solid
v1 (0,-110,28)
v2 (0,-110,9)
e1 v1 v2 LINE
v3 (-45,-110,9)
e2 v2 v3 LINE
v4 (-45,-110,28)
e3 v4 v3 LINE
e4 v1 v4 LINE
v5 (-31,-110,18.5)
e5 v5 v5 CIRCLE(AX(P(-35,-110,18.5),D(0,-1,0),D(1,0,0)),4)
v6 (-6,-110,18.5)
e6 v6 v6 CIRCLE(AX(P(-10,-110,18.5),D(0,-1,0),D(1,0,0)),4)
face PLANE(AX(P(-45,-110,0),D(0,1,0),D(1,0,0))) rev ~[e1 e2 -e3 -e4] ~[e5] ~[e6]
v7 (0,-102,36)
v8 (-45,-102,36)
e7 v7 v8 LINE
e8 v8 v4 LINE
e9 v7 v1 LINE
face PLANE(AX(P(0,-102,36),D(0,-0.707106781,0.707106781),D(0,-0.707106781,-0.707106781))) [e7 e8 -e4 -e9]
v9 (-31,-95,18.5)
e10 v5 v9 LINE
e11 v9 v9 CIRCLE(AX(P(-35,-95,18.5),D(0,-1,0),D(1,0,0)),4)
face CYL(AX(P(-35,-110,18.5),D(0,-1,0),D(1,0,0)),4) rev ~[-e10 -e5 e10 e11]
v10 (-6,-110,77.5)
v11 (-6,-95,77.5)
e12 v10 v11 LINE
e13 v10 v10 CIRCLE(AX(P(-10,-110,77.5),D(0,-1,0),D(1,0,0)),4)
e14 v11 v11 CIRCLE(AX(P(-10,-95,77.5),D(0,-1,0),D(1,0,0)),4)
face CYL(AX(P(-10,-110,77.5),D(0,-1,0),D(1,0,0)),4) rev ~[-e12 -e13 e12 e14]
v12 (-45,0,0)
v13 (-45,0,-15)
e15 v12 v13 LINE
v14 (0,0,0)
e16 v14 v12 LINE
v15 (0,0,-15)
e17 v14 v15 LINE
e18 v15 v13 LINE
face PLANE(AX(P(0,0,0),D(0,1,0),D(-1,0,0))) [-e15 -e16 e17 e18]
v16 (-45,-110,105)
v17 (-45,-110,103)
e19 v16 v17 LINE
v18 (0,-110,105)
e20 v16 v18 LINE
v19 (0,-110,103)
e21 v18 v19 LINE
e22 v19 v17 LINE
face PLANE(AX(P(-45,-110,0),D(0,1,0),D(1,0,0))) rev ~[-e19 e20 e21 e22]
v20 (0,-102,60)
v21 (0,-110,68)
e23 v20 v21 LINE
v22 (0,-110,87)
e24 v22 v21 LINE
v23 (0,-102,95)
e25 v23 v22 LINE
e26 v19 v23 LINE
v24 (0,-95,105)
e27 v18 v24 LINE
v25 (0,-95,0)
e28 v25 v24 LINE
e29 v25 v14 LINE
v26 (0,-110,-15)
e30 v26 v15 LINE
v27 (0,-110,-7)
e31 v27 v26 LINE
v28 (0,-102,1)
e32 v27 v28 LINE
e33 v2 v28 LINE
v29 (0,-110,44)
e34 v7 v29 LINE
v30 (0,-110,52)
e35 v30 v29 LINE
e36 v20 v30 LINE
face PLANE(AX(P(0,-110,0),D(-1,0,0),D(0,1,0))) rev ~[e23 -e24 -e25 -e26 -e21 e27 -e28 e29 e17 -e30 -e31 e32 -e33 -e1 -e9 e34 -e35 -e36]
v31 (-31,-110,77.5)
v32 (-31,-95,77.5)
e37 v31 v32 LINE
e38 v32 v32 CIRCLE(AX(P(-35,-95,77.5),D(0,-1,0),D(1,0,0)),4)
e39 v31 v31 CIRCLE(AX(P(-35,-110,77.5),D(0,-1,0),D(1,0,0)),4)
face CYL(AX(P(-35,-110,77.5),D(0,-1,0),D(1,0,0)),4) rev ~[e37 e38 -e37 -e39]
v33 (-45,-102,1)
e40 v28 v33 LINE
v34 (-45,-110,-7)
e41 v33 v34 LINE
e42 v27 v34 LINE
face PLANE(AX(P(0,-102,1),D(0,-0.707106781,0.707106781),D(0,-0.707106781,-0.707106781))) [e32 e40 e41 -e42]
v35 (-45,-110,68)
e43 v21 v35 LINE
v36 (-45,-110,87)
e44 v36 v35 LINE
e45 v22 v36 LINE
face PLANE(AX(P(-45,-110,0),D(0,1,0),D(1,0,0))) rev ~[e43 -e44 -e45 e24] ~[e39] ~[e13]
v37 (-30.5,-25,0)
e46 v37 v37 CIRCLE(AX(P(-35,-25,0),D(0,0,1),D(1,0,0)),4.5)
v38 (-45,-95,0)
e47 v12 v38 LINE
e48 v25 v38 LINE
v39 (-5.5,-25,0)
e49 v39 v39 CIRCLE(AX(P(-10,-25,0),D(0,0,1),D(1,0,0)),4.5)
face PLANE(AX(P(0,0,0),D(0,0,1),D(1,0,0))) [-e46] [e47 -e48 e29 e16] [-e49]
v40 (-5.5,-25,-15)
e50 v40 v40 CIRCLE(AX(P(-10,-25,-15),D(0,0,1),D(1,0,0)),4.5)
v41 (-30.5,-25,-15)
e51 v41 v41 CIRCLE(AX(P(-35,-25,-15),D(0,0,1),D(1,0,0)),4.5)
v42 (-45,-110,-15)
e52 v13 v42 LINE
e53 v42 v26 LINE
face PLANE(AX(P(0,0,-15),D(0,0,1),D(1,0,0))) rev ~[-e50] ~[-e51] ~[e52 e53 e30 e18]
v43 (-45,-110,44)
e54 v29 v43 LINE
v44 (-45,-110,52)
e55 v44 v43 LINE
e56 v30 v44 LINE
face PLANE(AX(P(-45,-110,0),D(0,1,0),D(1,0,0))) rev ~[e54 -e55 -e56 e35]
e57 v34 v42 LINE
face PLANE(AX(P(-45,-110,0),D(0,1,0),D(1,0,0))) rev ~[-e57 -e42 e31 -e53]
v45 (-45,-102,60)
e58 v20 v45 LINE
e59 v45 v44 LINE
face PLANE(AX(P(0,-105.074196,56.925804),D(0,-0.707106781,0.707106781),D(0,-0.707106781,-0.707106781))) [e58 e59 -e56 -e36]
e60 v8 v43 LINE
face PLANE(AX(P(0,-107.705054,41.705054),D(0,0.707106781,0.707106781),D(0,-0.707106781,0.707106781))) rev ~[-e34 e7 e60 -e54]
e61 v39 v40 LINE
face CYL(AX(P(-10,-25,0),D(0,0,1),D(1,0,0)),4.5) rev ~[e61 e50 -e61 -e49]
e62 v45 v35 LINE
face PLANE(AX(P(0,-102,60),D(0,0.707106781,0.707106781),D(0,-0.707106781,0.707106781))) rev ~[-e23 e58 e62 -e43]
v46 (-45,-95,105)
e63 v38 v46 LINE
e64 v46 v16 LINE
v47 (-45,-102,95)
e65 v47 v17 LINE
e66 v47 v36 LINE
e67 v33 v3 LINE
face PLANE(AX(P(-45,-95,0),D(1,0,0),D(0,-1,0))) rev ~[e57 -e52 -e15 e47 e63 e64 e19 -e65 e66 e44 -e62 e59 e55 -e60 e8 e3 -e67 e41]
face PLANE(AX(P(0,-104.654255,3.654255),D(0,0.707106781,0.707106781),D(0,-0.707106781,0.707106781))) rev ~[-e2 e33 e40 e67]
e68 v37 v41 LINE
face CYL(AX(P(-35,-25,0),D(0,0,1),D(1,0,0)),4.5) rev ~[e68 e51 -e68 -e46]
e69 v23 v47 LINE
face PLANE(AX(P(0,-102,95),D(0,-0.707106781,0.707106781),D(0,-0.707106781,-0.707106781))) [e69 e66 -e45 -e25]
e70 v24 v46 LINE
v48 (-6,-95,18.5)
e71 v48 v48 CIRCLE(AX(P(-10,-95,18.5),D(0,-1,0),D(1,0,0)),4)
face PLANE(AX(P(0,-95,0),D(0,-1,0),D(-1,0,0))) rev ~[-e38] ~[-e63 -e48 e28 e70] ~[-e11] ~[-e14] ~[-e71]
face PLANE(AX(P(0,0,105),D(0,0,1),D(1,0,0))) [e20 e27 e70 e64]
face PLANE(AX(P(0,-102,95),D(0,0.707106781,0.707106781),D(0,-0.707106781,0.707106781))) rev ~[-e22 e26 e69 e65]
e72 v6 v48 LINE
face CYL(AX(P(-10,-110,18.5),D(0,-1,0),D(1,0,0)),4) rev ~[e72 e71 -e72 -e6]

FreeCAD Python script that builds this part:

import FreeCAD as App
import Part
import Sketcher

V = App.Vector


def add_polygon(sketch, points):
    """Adds a closed chain of lines whose ends are joined by coincident constraints."""
    first, n = sketch.GeometryCount, len(points)
    for a, b in zip(points, points[1:] + points[:1]):
        sketch.addGeometry(Part.LineSegment(App.Vector(*a, 0), App.Vector(*b, 0)), False)
    for i in range(n):
        sketch.addConstraint(Sketcher.Constraint("Coincident", first + i, 2, first + (i + 1) % n, 1))

doc = App.newDocument("Part")
params = doc.addObject("Spreadsheet::Sheet", "Params")
for row, (alias, value) in enumerate([
    ("sketch1_width", "45 mm"),
    ("sketch1_height", "110 mm"),
    ("pad1_length", "15 mm"),
    ("sketch2_diameter", "9 mm"),
    ("pocket1_length", "15 mm"),
    ("sketch3_height", "15 mm"),
    ("sketch3_width", "45 mm"),
    ("pad2_length", "105 mm"),
    ("pocket2_length", "50 mm"),
    ("sketch5_diameter", "8 mm"),
    ("pocket3_length", "15 mm"),
], start=1):
    params.set(f"A{row}", alias)
    params.set(f"B{row}", "=" + value)
    params.setAlias(f"B{row}", alias)

body = doc.addObject("PartDesign::Body", "Body")

# Sketch on XY plane
sketch1 = body.newObject("Sketcher::SketchObject", "Sketch")
sketch1.AttachmentSupport = (doc.getObject("XY_Plane"), [""])
sketch1.MapMode = "FlatFace"
add_polygon(sketch1, [(0, -110), (0, 0), (-45, 0), (-45, -110)])  # lines 0-3
sketch1.addConstraint(Sketcher.Constraint("Vertical", 0))
sketch1.addConstraint(Sketcher.Constraint("Horizontal", 1))
sketch1.addConstraint(Sketcher.Constraint("Vertical", 2))
sketch1.addConstraint(Sketcher.Constraint("Horizontal", 3))
sketch1.addConstraint(Sketcher.Constraint("Coincident", 0, 2, -1, 1))
sketch1.addConstraint(Sketcher.Constraint("DistanceX", 1, 2, 1, 1, 45.0))
sketch1.addConstraint(Sketcher.Constraint("DistanceY", 0, 1, 0, 2, 110.0))
sketch1.setExpression("Constraints[9]", "Params.sketch1_width")
sketch1.setExpression("Constraints[10]", "Params.sketch1_height")
pad1 = body.newObject("PartDesign::Pad", "Pad")
pad1.Profile = sketch1
pad1.setExpression("Length", "Params.pad1_length")
pad1.Reversed = True

# Sketch on XY plane
sketch2 = body.newObject("Sketcher::SketchObject", "Sketch001")
sketch2.AttachmentSupport = (doc.getObject("XY_Plane"), [""])
sketch2.MapMode = "FlatFace"
sketch2.addGeometry(Part.Circle(V(-35, -25, 0), V(0, 0, 1), 4.5), False)
sketch2.addGeometry(Part.Circle(V(-10, -25, 0), V(0, 0, 1), 4.5), False)
sketch2.addConstraint(Sketcher.Constraint("Equal", 0, 1))
sketch2.addConstraint(Sketcher.Constraint("Horizontal", 0, 3, 1, 3))
sketch2.addConstraint(Sketcher.Constraint("Diameter", 0, 9.0))
sketch2.addConstraint(Sketcher.Constraint("DistanceY", 0, 3, -1, 1, 25.0))
sketch2.addConstraint(Sketcher.Constraint("DistanceX", 1, 3, -1, 1, 10.0))
sketch2.addConstraint(Sketcher.Constraint("DistanceX", 0, 3, 1, 3, 25.0))
sketch2.setExpression("Constraints[2]", "Params.sketch2_diameter")
pocket1 = body.newObject("PartDesign::Pocket", "Pocket")
pocket1.Profile = sketch2
pocket1.setExpression("Length", "Params.pocket1_length")

# Sketch on XY plane
sketch3 = body.newObject("Sketcher::SketchObject", "Sketch002")
sketch3.AttachmentSupport = (doc.getObject("XY_Plane"), [""])
sketch3.MapMode = "FlatFace"
add_polygon(sketch3, [(0, -110), (0, -95), (-45, -95), (-45, -110)])  # lines 0-3
sketch3.addConstraint(Sketcher.Constraint("Vertical", 0))
sketch3.addConstraint(Sketcher.Constraint("Horizontal", 1))
sketch3.addConstraint(Sketcher.Constraint("Vertical", 2))
sketch3.addConstraint(Sketcher.Constraint("Horizontal", 3))
sketch3.addConstraint(Sketcher.Constraint("PointOnObject", 0, 2, -2))
sketch3.addConstraint(Sketcher.Constraint("DistanceY", 0, 1, 0, 2, 15.0))
sketch3.addConstraint(Sketcher.Constraint("DistanceX", 1, 2, 1, 1, 45.0))
sketch3.addConstraint(Sketcher.Constraint("DistanceY", 0, 2, -1, 1, 95.0))
sketch3.setExpression("Constraints[9]", "Params.sketch3_height")
sketch3.setExpression("Constraints[10]", "Params.sketch3_width")
pad2 = body.newObject("PartDesign::Pad", "Pad001")
pad2.Profile = sketch3
pad2.setExpression("Length", "Params.pad2_length")

# Sketch on YZ plane
sketch4 = body.newObject("Sketcher::SketchObject", "Sketch003")
sketch4.AttachmentSupport = (doc.getObject("YZ_Plane"), [""])
sketch4.MapMode = "FlatFace"
add_polygon(sketch4, [(-110, 9), (-110, -7), (-102, 1)])  # lines 0-2
add_polygon(sketch4, [(-110, 28), (-102, 36), (-110, 44)])  # lines 3-5
add_polygon(sketch4, [(-110, 52), (-102, 60), (-110, 68)])  # lines 6-8
add_polygon(sketch4, [(-110, 87), (-102, 95), (-110, 103)])  # lines 9-11
sketch4.addConstraint(Sketcher.Constraint("Vertical", 0))
sketch4.addConstraint(Sketcher.Constraint("Vertical", 5))
sketch4.addConstraint(Sketcher.Constraint("Vertical", 8))
sketch4.addConstraint(Sketcher.Constraint("Vertical", 11))
sketch4.addConstraint(Sketcher.Constraint("Perpendicular", 1, 2))
sketch4.addConstraint(Sketcher.Constraint("Perpendicular", 2, 3))
sketch4.addConstraint(Sketcher.Constraint("Perpendicular", 3, 4))
sketch4.addConstraint(Sketcher.Constraint("Perpendicular", 4, 6))
sketch4.addConstraint(Sketcher.Constraint("Perpendicular", 6, 7))
sketch4.addConstraint(Sketcher.Constraint("Perpendicular", 7, 9))
sketch4.addConstraint(Sketcher.Constraint("Perpendicular", 9, 10))
sketch4.addConstraint(Sketcher.Constraint("Vertical", 1, 2, 3, 2))
sketch4.addConstraint(Sketcher.Constraint("Vertical", 2, 2, 4, 2))
sketch4.addConstraint(Sketcher.Constraint("Vertical", 3, 2, 6, 2))
sketch4.addConstraint(Sketcher.Constraint("Vertical", 5, 2, 7, 2))
sketch4.addConstraint(Sketcher.Constraint("Vertical", 6, 2, 9, 2))
sketch4.addConstraint(Sketcher.Constraint("Vertical", 8, 2, 10, 2))
sketch4.addConstraint(Sketcher.Constraint("Equal", 1, 2))
sketch4.addConstraint(Sketcher.Constraint("DistanceX", 0, 2, 1, 2, 8.0))
sketch4.addConstraint(Sketcher.Constraint("DistanceY", 1, 2, 3, 2, 35.0))
sketch4.addConstraint(Sketcher.Constraint("DistanceY", 1, 2, 6, 2, 59.0))
sketch4.addConstraint(Sketcher.Constraint("DistanceY", 6, 2, 9, 2, 35.0))
sketch4.addConstraint(Sketcher.Constraint("DistanceX", 0, 2, -1, 1, 110.0))
sketch4.addConstraint(Sketcher.Constraint("DistanceY", 0, 2, -1, 1, 7.0))
pocket2 = body.newObject("PartDesign::Pocket", "Pocket001")
pocket2.Profile = sketch4
pocket2.setExpression("Length", "Params.pocket2_length")

# Sketch on XZ plane
sketch5 = body.newObject("Sketcher::SketchObject", "Sketch004")
sketch5.AttachmentSupport = (doc.getObject("XZ_Plane"), [""])
sketch5.MapMode = "FlatFace"
sketch5.AttachmentOffset = App.Placement(V(0, 0, 110), App.Rotation())
sketch5.addGeometry(Part.Circle(V(-35, 77.5, 0), V(0, 0, 1), 4), False)
sketch5.addGeometry(Part.Circle(V(-10, 77.5, 0), V(0, 0, 1), 4), False)
sketch5.addGeometry(Part.Circle(V(-35, 18.5, 0), V(0, 0, 1), 4), False)
sketch5.addGeometry(Part.Circle(V(-10, 18.5, 0), V(0, 0, 1), 4), False)
sketch5.addConstraint(Sketcher.Constraint("Equal", 0, 1))
sketch5.addConstraint(Sketcher.Constraint("Equal", 1, 2))
sketch5.addConstraint(Sketcher.Constraint("Equal", 2, 3))
sketch5.addConstraint(Sketcher.Constraint("Horizontal", 0, 3, 1, 3))
sketch5.addConstraint(Sketcher.Constraint("Horizontal", 2, 3, 3, 3))
sketch5.addConstraint(Sketcher.Constraint("Vertical", 0, 3, 2, 3))
sketch5.addConstraint(Sketcher.Constraint("Vertical", 1, 3, 3, 3))
sketch5.addConstraint(Sketcher.Constraint("Diameter", 0, 8.0))
sketch5.addConstraint(Sketcher.Constraint("DistanceX", 0, 3, 1, 3, 25.0))
sketch5.addConstraint(Sketcher.Constraint("DistanceY", 2, 3, 0, 3, 59.0))
sketch5.addConstraint(Sketcher.Constraint("DistanceX", 0, 3, -1, 1, 35.0))
sketch5.addConstraint(Sketcher.Constraint("DistanceY", -1, 1, 0, 3, 77.5))
sketch5.setExpression("Constraints[7]", "Params.sketch5_diameter")
pocket3 = body.newObject("PartDesign::Pocket", "Pocket002")
pocket3.Profile = sketch5
pocket3.setExpression("Length", "Params.pocket3_length")

doc.recompute()
